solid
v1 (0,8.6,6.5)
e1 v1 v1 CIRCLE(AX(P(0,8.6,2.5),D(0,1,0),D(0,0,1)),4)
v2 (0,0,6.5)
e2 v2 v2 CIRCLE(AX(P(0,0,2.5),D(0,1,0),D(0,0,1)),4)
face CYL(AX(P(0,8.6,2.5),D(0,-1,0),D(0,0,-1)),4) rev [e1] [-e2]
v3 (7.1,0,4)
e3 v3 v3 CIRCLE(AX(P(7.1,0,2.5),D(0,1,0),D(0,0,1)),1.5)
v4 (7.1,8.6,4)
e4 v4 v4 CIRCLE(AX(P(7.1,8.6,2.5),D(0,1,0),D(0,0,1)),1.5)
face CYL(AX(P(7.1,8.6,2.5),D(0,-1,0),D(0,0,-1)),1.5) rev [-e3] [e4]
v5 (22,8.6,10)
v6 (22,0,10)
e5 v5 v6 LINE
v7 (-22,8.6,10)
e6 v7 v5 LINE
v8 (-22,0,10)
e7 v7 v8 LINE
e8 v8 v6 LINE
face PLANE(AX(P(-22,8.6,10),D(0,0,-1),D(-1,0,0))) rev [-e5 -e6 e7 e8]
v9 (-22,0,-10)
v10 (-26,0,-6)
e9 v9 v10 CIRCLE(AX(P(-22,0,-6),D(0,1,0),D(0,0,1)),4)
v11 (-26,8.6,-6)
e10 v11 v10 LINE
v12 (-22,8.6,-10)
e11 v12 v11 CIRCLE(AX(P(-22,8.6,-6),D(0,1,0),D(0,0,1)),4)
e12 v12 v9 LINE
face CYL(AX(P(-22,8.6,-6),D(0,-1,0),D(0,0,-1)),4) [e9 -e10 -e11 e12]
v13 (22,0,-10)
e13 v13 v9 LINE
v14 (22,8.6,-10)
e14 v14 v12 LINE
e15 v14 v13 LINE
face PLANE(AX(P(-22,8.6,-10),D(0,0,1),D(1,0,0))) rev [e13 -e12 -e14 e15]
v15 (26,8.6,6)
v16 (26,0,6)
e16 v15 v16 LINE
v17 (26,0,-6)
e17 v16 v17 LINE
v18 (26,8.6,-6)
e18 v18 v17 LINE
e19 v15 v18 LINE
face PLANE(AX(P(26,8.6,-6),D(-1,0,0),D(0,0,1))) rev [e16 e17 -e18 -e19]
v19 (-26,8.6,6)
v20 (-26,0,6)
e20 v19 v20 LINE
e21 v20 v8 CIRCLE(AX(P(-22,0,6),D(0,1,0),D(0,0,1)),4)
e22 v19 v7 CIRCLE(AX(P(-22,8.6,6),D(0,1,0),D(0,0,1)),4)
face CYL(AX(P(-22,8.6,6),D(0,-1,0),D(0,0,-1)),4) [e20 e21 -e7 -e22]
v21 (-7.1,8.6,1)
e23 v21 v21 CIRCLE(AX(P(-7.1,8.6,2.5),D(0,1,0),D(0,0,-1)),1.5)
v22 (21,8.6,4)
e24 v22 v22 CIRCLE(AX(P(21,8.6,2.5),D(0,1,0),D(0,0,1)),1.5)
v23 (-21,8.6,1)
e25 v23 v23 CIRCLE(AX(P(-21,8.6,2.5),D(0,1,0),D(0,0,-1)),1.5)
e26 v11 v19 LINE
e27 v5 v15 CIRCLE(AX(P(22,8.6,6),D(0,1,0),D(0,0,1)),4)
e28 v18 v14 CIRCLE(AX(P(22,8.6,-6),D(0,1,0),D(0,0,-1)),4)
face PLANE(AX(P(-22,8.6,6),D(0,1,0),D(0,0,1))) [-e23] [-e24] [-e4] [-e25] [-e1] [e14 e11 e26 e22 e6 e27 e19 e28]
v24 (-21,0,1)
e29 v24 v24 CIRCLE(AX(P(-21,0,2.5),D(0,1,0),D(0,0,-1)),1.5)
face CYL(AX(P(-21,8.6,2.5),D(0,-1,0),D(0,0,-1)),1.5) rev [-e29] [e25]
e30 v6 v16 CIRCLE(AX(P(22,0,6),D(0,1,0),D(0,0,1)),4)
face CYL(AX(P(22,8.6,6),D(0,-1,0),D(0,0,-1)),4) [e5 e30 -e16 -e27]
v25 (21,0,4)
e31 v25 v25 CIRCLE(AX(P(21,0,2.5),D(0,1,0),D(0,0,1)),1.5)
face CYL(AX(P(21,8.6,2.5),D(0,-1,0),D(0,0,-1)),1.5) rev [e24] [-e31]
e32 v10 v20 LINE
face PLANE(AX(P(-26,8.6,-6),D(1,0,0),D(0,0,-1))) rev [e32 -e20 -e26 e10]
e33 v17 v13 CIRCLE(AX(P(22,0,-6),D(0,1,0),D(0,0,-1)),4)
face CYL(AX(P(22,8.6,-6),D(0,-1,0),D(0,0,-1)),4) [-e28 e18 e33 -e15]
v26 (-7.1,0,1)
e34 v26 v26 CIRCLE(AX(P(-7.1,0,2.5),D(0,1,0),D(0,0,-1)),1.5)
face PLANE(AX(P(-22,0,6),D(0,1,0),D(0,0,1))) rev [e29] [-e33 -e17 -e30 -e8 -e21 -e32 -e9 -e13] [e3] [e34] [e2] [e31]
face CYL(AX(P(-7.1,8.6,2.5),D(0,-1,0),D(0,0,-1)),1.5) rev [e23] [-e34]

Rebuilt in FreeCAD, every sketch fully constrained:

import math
import FreeCAD as App
import Part
import Sketcher

V = App.Vector
Q = App.Units.Quantity

doc = App.newDocument("Part")
body = doc.addObject("PartDesign::Body", "Body")

# Sketch on XZ plane
sketch1 = doc.addObject("Sketcher::SketchObject", "Sketch")
body.addObject(sketch1)
sketch1.AttachmentSupport = (doc.XZ_Plane, [""])
sketch1.MapMode = "FlatFace"
sketch1.addGeometry([
    Part.LineSegment(V(22, -10, 0), V(-22, -10, 0)),  # 0
    Part.ArcOfCircle(Part.Circle(V(-22, -6, 0), V(0, 0, 1), 4), math.radians(180), math.radians(270)),  # 1
    Part.LineSegment(V(-26, -6, 0), V(-26, 6, 0)),  # 2
    Part.ArcOfCircle(Part.Circle(V(-22, 6, 0), V(0, 0, 1), 4), math.radians(90), math.radians(180)),  # 3
    Part.LineSegment(V(-22, 10, 0), V(22, 10, 0)),  # 4
    Part.ArcOfCircle(Part.Circle(V(22, 6, 0), V(0, 0, 1), 4), math.radians(0), math.radians(90)),  # 5
    Part.LineSegment(V(26, 6, 0), V(26, -6, 0)),  # 6
    Part.ArcOfCircle(Part.Circle(V(22, -6, 0), V(0, 0, 1), 4), math.radians(-90), math.radians(0)),  # 7
    Part.Circle(V(21, 2.5, 0), V(0, 0, 1), 1.5),  # 8
    Part.Circle(V(7.1, 2.5, 0), V(0, 0, 1), 1.5),  # 9
    Part.Circle(V(-7.1, 2.5, 0), V(0, 0, 1), 1.5),  # 10
    Part.Circle(V(-21, 2.5, 0), V(0, 0, 1), 1.5),  # 11
    Part.Circle(V(0, 2.5, 0), V(0, 0, 1), 4),  # 12
], False)
sketch1.addConstraint([
    Sketcher.Constraint("Tangent", 0, 2, 1, 2),
    Sketcher.Constraint("Tangent", 1, 1, 2, 1),
    Sketcher.Constraint("Tangent", 2, 2, 3, 2),
    Sketcher.Constraint("Tangent", 3, 1, 4, 1),
    Sketcher.Constraint("Tangent", 4, 2, 5, 2),
    Sketcher.Constraint("Tangent", 5, 1, 6, 1),
    Sketcher.Constraint("Tangent", 6, 2, 7, 2),
    Sketcher.Constraint("Tangent", 7, 1, 0, 1),
    Sketcher.Constraint("Horizontal", 0),
    Sketcher.Constraint("Vertical", 2),
    Sketcher.Constraint("Horizontal", 4),
    Sketcher.Constraint("Vertical", 6),
    Sketcher.Constraint("Equal", 1, 3),
    Sketcher.Constraint("Equal", 3, 5),
    Sketcher.Constraint("Equal", 5, 7),
    Sketcher.Constraint("Equal", 8, 9),
    Sketcher.Constraint("Equal", 9, 10),
    Sketcher.Constraint("Equal", 10, 11),
    Sketcher.Constraint("Equal", 7, 12),
    Sketcher.Constraint("Symmetric", 1, 3, 5, 3, -1, 1),
    Sketcher.Constraint("Symmetric", 9, 3, 10, 3, -2),
    Sketcher.Constraint("Symmetric", 8, 3, 11, 3, -2),
    Sketcher.Constraint("PointOnObject", 12, 3, -2),
    Sketcher.Constraint("Horizontal", 8, 3, 9, 3),
    Sketcher.Constraint("Horizontal", 11, 3, 12, 3),
    Sketcher.Constraint("Diameter", 8, Q("3 mm")),
    Sketcher.Constraint("Diameter", 12, Q("8 mm")),
    Sketcher.Constraint("DistanceX", 0, 2, 0, 1, Q("44 mm")),
    Sketcher.Constraint("DistanceY", 2, 1, 2, 2, Q("12 mm")),
    Sketcher.Constraint("DistanceX", -1, 1, 8, 3, Q("21 mm")),
    Sketcher.Constraint("DistanceY", -1, 1, 8, 3, Q("2.5 mm")),
    Sketcher.Constraint("DistanceX", -1, 1, 9, 3, Q("7.1 mm")),
])
pad1 = doc.addObject("PartDesign::Pad", "Pad")
body.addObject(pad1)
pad1.Profile = sketch1
pad1.Length = 8.6
pad1.Reversed = True

doc.recompute()
